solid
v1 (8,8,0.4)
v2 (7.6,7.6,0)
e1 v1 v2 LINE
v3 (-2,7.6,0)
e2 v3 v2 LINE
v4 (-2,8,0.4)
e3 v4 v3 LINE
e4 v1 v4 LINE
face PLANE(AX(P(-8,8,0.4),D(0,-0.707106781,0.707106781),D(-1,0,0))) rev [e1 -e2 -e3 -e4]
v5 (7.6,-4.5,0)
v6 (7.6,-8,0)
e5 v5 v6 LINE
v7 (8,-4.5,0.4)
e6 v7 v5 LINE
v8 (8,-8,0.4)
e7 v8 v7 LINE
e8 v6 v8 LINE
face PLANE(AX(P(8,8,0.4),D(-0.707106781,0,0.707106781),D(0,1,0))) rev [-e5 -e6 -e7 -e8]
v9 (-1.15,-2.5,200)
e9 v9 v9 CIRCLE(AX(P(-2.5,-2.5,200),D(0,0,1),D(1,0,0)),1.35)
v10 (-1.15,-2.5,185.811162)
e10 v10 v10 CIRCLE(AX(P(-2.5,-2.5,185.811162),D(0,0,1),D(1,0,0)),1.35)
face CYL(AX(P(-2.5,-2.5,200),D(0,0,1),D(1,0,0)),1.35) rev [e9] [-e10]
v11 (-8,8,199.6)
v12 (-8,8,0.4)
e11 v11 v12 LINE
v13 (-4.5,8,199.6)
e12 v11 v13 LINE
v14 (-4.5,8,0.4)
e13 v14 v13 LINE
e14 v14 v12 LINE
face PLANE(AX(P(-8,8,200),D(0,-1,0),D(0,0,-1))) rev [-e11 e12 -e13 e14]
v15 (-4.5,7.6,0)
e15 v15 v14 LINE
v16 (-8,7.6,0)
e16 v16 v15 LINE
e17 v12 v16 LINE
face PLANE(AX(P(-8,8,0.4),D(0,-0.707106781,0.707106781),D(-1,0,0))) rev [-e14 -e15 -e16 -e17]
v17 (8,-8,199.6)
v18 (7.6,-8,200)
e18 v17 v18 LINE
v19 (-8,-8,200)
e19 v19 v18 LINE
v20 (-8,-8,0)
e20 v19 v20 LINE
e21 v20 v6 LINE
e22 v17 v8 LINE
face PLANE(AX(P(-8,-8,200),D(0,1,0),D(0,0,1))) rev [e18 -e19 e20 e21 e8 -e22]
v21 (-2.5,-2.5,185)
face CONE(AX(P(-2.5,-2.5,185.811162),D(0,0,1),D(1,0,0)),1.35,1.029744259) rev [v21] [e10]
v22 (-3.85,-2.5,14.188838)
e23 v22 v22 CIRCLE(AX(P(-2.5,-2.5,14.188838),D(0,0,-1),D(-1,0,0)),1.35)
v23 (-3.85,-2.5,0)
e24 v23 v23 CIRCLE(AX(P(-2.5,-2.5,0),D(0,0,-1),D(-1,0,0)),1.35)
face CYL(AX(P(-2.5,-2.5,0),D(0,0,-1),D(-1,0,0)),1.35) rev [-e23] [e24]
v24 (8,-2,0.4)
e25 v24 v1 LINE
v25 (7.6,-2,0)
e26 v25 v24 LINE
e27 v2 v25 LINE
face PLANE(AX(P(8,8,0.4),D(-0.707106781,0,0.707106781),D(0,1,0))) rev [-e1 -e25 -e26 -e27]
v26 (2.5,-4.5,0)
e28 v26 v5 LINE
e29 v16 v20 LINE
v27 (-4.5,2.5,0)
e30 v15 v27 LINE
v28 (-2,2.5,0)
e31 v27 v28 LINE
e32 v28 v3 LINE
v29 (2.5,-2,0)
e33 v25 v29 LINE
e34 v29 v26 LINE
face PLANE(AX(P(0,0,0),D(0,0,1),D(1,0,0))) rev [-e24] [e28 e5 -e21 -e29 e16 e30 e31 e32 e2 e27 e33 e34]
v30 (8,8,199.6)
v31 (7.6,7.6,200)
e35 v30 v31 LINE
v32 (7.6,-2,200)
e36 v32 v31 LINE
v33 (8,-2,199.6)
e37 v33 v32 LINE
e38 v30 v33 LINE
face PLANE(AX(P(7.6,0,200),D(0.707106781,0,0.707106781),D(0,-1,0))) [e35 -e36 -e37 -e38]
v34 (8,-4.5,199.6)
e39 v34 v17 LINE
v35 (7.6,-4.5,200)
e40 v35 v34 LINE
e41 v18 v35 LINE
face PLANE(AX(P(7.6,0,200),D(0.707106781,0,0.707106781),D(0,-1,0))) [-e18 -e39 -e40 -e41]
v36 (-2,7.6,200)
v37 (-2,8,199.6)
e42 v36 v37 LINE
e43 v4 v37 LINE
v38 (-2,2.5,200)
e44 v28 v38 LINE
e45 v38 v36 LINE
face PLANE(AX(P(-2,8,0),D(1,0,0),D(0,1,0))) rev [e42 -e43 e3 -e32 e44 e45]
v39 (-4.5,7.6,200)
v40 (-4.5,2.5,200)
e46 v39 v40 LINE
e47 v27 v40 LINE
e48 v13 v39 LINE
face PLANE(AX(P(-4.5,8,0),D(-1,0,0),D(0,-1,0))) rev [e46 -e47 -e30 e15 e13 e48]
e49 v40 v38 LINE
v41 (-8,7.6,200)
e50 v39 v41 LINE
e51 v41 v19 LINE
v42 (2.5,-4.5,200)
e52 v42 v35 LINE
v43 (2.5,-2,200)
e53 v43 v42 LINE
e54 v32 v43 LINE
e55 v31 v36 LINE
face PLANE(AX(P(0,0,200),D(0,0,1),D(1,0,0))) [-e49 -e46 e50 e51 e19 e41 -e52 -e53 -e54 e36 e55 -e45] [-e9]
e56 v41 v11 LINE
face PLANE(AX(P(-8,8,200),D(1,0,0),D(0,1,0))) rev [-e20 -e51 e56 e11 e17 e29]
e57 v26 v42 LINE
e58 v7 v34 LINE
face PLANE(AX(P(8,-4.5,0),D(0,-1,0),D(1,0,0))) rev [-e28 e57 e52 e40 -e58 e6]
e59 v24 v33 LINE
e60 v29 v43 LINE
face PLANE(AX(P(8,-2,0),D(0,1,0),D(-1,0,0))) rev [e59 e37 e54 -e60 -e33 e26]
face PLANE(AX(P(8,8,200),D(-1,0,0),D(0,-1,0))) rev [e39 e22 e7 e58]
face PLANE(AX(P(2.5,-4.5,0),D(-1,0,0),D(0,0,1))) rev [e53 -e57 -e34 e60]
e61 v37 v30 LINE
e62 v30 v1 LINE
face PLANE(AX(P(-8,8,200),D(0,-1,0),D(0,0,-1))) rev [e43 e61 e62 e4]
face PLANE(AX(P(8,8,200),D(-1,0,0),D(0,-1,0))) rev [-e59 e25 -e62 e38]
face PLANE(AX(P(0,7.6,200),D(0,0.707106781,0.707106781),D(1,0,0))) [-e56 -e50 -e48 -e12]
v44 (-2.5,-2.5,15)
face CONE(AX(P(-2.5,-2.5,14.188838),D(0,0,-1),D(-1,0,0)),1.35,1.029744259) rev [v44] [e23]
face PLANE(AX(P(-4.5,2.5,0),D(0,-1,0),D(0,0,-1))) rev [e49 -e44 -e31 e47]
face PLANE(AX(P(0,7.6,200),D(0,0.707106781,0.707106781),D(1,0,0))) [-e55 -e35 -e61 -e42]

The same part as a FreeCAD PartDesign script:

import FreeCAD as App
import Part
import Sketcher
Q = App.Units.Quantity


def edges_at(feature, points):
    """Names of the edges that pass closest to the given points."""
    edges = feature.Shape.Edges
    near = lambda p: min(range(len(edges)), key=lambda i: edges[i].distToShape(Part.Vertex(*p))[0])
    return sorted({f"Edge{near(p) + 1}" for p in points})


def add_polygon(sketch, points):
    """Adds a closed chain of lines whose ends are joined by coincident constraints."""
    first, n = sketch.GeometryCount, len(points)
    for a, b in zip(points, points[1:] + points[:1]):
        sketch.addGeometry(Part.LineSegment(App.Vector(*a, 0), App.Vector(*b, 0)), False)
    for i in range(n):
        sketch.addConstraint(Sketcher.Constraint("Coincident", first + i, 2, first + (i + 1) % n, 1))

doc = App.newDocument("Part")
body = doc.addObject("PartDesign::Body", "Body")

# Sketch on XY plane
sketch1 = doc.addObject("Sketcher::SketchObject", "Sketch")
body.addObject(sketch1)
sketch1.AttachmentSupport = (doc.XY_Plane, [""])
sketch1.MapMode = "FlatFace"
add_polygon(sketch1, [(-8, 8), (-8, -8), (8, -8), (8, 8)])  # lines 0-3
sketch1.addConstraint([
    Sketcher.Constraint("Vertical", 0),
    Sketcher.Constraint("Horizontal", 1),
    Sketcher.Constraint("Vertical", 2),
    Sketcher.Constraint("Horizontal", 3),
    Sketcher.Constraint("Symmetric", 0, 2, 2, 2, -1, 1),
    Sketcher.Constraint("Equal", 3, 0),
    Sketcher.Constraint("DistanceX", 1, 1, 1, 2, Q("16 mm")),
])
pad1 = doc.addObject("PartDesign::Pad", "Pad")
body.addObject(pad1)
pad1.Profile = sketch1
pad1.Length = 200

# Sketch on XY plane
sketch2 = doc.addObject("Sketcher::SketchObject", "Sketch001")
body.addObject(sketch2)
sketch2.AttachmentSupport = (doc.XY_Plane, [""])
sketch2.MapMode = "FlatFace"
sketch2.AttachmentOffset = App.Placement(App.Vector(0, 0, 200), App.Rotation())
add_polygon(sketch2, [(-4.5, 8), (-4.5, 2.5), (-2, 2.5), (-2, 8)])  # lines 0-3
add_polygon(sketch2, [(2.5, -2), (2.5, -4.5), (8, -4.5), (8, -2)])  # lines 4-7
sketch2.addConstraint([
    Sketcher.Constraint("Vertical", 0),
    Sketcher.Constraint("Horizontal", 1),
    Sketcher.Constraint("Vertical", 2),
    Sketcher.Constraint("Horizontal", 3),
    Sketcher.Constraint("Vertical", 4),
    Sketcher.Constraint("Horizontal", 5),
    Sketcher.Constraint("Vertical", 6),
    Sketcher.Constraint("Horizontal", 7),
    Sketcher.Constraint("Equal", 7, 0),
    Sketcher.Constraint("Equal", 3, 4),
    Sketcher.Constraint("DistanceX", 1, 1, 1, 2, Q("2.5 mm")),
    Sketcher.Constraint("DistanceX", 5, 1, 5, 2, Q("5.5 mm")),
    Sketcher.Constraint("DistanceX", 1, 2, -1, 1, Q("2 mm")),
    Sketcher.Constraint("DistanceY", -1, 1, 2, 2, Q("8 mm")),
    Sketcher.Constraint("DistanceX", -1, 1, 5, 2, Q("8 mm")),
    Sketcher.Constraint("DistanceY", 6, 2, -1, 1, Q("2 mm")),
])
pocket1 = doc.addObject("PartDesign::Pocket", "Pocket")
body.addObject(pocket1)
pocket1.Profile = sketch2
pocket1.Type = "ThroughAll"
doc.recompute()

chamfer = doc.addObject("PartDesign::Chamfer", "Chamfer")
body.addObject(chamfer)
chamfer.Base = (pocket1, edges_at(pocket1, [
    (8, 3, 0),
    (-6.25, 8, 0),
    (8, 3, 200),
    (-6.25, 8, 200),
    (8, -6.25, 200),
    (3, 8, 0),
    (8, -6.25, 0),
    (3, 8, 200),
]))
chamfer.Size = 0.4

# Sketch on XY plane
sketch3 = doc.addObject("Sketcher::SketchObject", "Sketch002")
body.addObject(sketch3)
sketch3.AttachmentSupport = (doc.XY_Plane, [""])
sketch3.MapMode = "FlatFace"
sketch3.AttachmentOffset = App.Placement(App.Vector(0, 0, 200), App.Rotation())
sketch3.addGeometry(Part.Circle(App.Vector(-2.5, -2.5, 0), App.Vector(0, 0, 1), 1.4), False)
sketch3.addConstraint([
    Sketcher.Constraint("Diameter", 0, Q("2.7 mm")),
    Sketcher.Constraint("DistanceX", 0, 3, -1, 1, Q("2.5 mm")),
    Sketcher.Constraint("DistanceY", 0, 3, -1, 1, Q("2.5 mm")),
])
doc.recompute()
hole = doc.addObject("PartDesign::Hole", "Hole")
body.addObject(hole)
hole.Profile = sketch3
hole.ThreadType = "None"
hole.Diameter = 2.7
hole.DepthType = "Dimension"
hole.Depth = 14.188838
hole.DrillPoint = "Angled"
hole.DrillPointAngle = 118

# Sketch on XY plane
sketch4 = doc.addObject("Sketcher::SketchObject", "Sketch003")
body.addObject(sketch4)
sketch4.AttachmentSupport = (doc.XY_Plane, [""])
sketch4.MapMode = "FlatFace"
sketch4.addGeometry(Part.Circle(App.Vector(-2.5, -2.5, 0), App.Vector(0, 0, 1), 1.4), False)
sketch4.addConstraint([
    Sketcher.Constraint("Diameter", 0, Q("2.7 mm")),
    Sketcher.Constraint("DistanceX", 0, 3, -1, 1, Q("2.5 mm")),
    Sketcher.Constraint("DistanceY", 0, 3, -1, 1, Q("2.5 mm")),
])
doc.recompute()
hole2 = doc.addObject("PartDesign::Hole", "Hole001")
body.addObject(hole2)
hole2.Profile = sketch4
hole2.ThreadType = "None"
hole2.Diameter = 2.7
hole2.DepthType = "Dimension"
hole2.Depth = 14.188838
hole2.DrillPoint = "Angled"
hole2.DrillPointAngle = 118
hole2.Reversed = True

doc.recompute()
